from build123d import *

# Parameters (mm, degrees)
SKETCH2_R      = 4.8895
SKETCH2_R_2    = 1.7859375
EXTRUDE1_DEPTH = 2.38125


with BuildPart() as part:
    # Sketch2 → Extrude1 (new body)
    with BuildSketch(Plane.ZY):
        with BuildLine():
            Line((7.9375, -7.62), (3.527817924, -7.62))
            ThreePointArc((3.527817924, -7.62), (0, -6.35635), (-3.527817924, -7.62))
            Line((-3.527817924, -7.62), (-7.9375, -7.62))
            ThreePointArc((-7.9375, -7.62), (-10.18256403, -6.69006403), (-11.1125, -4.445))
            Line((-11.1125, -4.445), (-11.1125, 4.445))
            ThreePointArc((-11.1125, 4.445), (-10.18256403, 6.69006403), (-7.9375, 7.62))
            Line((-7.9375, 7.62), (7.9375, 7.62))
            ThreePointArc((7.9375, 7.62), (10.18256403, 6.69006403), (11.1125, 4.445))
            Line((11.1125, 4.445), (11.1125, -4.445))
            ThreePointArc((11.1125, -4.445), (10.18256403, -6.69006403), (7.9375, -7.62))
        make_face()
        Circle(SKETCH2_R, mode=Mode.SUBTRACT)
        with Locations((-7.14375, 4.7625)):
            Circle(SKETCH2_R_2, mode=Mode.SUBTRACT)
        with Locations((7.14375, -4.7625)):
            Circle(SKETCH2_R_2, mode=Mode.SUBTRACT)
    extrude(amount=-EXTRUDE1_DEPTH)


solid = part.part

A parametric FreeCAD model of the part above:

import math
import FreeCAD as App
import Part
import Sketcher

V = App.Vector
Q = App.Units.Quantity

doc = App.newDocument("Part")
body = doc.addObject("PartDesign::Body", "Body")

# Sketch on YZ plane
sketch1 = body.newObject("Sketcher::SketchObject", "Sketch")
sketch1.AttachmentSupport = (doc.getObject("YZ_Plane"), [""])
sketch1.MapMode = "FlatFace"
sketch1.addGeometry([
    Part.LineSegment(V(-7.6, 3.5, 0), V(-7.6, 7.9, 0)),  # 0
    Part.ArcOfCircle(Part.Circle(V(-4.4, 7.9, 0), V(0, 0, 1), 3.2), math.radians(90), math.radians(180)),  # 1
    Part.LineSegment(V(-4.4, 11.1, 0), V(4.4, 11.1, 0)),  # 2
    Part.ArcOfCircle(Part.Circle(V(4.4, 7.9, 0), V(0, 0, 1), 3.2), math.radians(0), math.radians(90)),  # 3
    Part.LineSegment(V(7.6, 7.9, 0), V(7.6, -7.9, 0)),  # 4
    Part.ArcOfCircle(Part.Circle(V(4.4, -7.9, 0), V(0, 0, 1), 3.2), math.radians(-90), math.radians(0)),  # 5
    Part.LineSegment(V(4.4, -11.1, 0), V(-4.4, -11.1, 0)),  # 6
    Part.ArcOfCircle(Part.Circle(V(-4.4, -7.9, 0), V(0, 0, 1), 3.2), math.radians(-180), math.radians(-90)),  # 7
    Part.LineSegment(V(-7.6, -7.9, 0), V(-7.6, -3.5, 0)),  # 8
    Part.ArcOfCircle(Part.Circle(V(-11.9, 0, 0), V(0, 0, 1), 5.6), math.radians(-39), math.radians(39)),  # 9
    Part.Circle(V(-4.8, 7.1, 0), V(0, 0, 1), 1.8),  # 10
    Part.Circle(V(0, 0, 0), V(0, 0, 1), 4.9),  # 11
    Part.Circle(V(4.8, -7.1, 0), V(0, 0, 1), 1.8),  # 12
], False)
sketch1.addConstraint([
    Sketcher.Constraint("Tangent", 0, 2, 1, 2),
    Sketcher.Constraint("Tangent", 1, 1, 2, 1),
    Sketcher.Constraint("Tangent", 2, 2, 3, 2),
    Sketcher.Constraint("Tangent", 3, 1, 4, 1),
    Sketcher.Constraint("Tangent", 4, 2, 5, 2),
    Sketcher.Constraint("Tangent", 5, 1, 6, 1),
    Sketcher.Constraint("Tangent", 6, 2, 7, 2),
    Sketcher.Constraint("Tangent", 7, 1, 8, 1),
    Sketcher.Constraint("Coincident", 8, 2, 9, 1),
    Sketcher.Constraint("Coincident", 9, 2, 0, 1),
    Sketcher.Constraint("Vertical", 0),
    Sketcher.Constraint("Horizontal", 2),
    Sketcher.Constraint("Vertical", 4),
    Sketcher.Constraint("Horizontal", 6),
    Sketcher.Constraint("Vertical", 8),
    Sketcher.Constraint("Coincident", 11, 3, -1, 1),
    Sketcher.Constraint("Equal", 1, 3),
    Sketcher.Constraint("Equal", 3, 5),
    Sketcher.Constraint("Equal", 5, 7),
    Sketcher.Constraint("Equal", 10, 12),
    Sketcher.Constraint("Symmetric", 1, 3, 5, 3, -1, 1),
    Sketcher.Constraint("Symmetric", 10, 3, 12, 3, -1, 1),
    Sketcher.Constraint("Symmetric", 8, 2, 9, 2, -1),
    Sketcher.Constraint("Diameter", 10, Q("0.140625 in")),
    Sketcher.Constraint("Diameter", 11, Q("0.385 in")),
    Sketcher.Constraint("Radius", 1, Q("0.125 in")),
    Sketcher.Constraint("Radius", 9, Q("0.21875 in")),
    Sketcher.Constraint("DistanceX", 2, 1, 2, 2, Q("0.35 in")),
    Sketcher.Constraint("DistanceY", 4, 2, 4, 1, Q("0.625 in")),
    Sketcher.Constraint("DistanceX", 9, 3, -1, 1, Q("0.469 in")),
    Sketcher.Constraint("DistanceX", 10, 3, -1, 1, Q("0.1875 in")),
    Sketcher.Constraint("DistanceY", -1, 1, 10, 3, Q("0.28125 in")),
])
pad1 = body.newObject("PartDesign::Pad", "Pad")
pad1.Profile = sketch1
pad1.Length = Q("0.09375 in")

doc.recompute()
